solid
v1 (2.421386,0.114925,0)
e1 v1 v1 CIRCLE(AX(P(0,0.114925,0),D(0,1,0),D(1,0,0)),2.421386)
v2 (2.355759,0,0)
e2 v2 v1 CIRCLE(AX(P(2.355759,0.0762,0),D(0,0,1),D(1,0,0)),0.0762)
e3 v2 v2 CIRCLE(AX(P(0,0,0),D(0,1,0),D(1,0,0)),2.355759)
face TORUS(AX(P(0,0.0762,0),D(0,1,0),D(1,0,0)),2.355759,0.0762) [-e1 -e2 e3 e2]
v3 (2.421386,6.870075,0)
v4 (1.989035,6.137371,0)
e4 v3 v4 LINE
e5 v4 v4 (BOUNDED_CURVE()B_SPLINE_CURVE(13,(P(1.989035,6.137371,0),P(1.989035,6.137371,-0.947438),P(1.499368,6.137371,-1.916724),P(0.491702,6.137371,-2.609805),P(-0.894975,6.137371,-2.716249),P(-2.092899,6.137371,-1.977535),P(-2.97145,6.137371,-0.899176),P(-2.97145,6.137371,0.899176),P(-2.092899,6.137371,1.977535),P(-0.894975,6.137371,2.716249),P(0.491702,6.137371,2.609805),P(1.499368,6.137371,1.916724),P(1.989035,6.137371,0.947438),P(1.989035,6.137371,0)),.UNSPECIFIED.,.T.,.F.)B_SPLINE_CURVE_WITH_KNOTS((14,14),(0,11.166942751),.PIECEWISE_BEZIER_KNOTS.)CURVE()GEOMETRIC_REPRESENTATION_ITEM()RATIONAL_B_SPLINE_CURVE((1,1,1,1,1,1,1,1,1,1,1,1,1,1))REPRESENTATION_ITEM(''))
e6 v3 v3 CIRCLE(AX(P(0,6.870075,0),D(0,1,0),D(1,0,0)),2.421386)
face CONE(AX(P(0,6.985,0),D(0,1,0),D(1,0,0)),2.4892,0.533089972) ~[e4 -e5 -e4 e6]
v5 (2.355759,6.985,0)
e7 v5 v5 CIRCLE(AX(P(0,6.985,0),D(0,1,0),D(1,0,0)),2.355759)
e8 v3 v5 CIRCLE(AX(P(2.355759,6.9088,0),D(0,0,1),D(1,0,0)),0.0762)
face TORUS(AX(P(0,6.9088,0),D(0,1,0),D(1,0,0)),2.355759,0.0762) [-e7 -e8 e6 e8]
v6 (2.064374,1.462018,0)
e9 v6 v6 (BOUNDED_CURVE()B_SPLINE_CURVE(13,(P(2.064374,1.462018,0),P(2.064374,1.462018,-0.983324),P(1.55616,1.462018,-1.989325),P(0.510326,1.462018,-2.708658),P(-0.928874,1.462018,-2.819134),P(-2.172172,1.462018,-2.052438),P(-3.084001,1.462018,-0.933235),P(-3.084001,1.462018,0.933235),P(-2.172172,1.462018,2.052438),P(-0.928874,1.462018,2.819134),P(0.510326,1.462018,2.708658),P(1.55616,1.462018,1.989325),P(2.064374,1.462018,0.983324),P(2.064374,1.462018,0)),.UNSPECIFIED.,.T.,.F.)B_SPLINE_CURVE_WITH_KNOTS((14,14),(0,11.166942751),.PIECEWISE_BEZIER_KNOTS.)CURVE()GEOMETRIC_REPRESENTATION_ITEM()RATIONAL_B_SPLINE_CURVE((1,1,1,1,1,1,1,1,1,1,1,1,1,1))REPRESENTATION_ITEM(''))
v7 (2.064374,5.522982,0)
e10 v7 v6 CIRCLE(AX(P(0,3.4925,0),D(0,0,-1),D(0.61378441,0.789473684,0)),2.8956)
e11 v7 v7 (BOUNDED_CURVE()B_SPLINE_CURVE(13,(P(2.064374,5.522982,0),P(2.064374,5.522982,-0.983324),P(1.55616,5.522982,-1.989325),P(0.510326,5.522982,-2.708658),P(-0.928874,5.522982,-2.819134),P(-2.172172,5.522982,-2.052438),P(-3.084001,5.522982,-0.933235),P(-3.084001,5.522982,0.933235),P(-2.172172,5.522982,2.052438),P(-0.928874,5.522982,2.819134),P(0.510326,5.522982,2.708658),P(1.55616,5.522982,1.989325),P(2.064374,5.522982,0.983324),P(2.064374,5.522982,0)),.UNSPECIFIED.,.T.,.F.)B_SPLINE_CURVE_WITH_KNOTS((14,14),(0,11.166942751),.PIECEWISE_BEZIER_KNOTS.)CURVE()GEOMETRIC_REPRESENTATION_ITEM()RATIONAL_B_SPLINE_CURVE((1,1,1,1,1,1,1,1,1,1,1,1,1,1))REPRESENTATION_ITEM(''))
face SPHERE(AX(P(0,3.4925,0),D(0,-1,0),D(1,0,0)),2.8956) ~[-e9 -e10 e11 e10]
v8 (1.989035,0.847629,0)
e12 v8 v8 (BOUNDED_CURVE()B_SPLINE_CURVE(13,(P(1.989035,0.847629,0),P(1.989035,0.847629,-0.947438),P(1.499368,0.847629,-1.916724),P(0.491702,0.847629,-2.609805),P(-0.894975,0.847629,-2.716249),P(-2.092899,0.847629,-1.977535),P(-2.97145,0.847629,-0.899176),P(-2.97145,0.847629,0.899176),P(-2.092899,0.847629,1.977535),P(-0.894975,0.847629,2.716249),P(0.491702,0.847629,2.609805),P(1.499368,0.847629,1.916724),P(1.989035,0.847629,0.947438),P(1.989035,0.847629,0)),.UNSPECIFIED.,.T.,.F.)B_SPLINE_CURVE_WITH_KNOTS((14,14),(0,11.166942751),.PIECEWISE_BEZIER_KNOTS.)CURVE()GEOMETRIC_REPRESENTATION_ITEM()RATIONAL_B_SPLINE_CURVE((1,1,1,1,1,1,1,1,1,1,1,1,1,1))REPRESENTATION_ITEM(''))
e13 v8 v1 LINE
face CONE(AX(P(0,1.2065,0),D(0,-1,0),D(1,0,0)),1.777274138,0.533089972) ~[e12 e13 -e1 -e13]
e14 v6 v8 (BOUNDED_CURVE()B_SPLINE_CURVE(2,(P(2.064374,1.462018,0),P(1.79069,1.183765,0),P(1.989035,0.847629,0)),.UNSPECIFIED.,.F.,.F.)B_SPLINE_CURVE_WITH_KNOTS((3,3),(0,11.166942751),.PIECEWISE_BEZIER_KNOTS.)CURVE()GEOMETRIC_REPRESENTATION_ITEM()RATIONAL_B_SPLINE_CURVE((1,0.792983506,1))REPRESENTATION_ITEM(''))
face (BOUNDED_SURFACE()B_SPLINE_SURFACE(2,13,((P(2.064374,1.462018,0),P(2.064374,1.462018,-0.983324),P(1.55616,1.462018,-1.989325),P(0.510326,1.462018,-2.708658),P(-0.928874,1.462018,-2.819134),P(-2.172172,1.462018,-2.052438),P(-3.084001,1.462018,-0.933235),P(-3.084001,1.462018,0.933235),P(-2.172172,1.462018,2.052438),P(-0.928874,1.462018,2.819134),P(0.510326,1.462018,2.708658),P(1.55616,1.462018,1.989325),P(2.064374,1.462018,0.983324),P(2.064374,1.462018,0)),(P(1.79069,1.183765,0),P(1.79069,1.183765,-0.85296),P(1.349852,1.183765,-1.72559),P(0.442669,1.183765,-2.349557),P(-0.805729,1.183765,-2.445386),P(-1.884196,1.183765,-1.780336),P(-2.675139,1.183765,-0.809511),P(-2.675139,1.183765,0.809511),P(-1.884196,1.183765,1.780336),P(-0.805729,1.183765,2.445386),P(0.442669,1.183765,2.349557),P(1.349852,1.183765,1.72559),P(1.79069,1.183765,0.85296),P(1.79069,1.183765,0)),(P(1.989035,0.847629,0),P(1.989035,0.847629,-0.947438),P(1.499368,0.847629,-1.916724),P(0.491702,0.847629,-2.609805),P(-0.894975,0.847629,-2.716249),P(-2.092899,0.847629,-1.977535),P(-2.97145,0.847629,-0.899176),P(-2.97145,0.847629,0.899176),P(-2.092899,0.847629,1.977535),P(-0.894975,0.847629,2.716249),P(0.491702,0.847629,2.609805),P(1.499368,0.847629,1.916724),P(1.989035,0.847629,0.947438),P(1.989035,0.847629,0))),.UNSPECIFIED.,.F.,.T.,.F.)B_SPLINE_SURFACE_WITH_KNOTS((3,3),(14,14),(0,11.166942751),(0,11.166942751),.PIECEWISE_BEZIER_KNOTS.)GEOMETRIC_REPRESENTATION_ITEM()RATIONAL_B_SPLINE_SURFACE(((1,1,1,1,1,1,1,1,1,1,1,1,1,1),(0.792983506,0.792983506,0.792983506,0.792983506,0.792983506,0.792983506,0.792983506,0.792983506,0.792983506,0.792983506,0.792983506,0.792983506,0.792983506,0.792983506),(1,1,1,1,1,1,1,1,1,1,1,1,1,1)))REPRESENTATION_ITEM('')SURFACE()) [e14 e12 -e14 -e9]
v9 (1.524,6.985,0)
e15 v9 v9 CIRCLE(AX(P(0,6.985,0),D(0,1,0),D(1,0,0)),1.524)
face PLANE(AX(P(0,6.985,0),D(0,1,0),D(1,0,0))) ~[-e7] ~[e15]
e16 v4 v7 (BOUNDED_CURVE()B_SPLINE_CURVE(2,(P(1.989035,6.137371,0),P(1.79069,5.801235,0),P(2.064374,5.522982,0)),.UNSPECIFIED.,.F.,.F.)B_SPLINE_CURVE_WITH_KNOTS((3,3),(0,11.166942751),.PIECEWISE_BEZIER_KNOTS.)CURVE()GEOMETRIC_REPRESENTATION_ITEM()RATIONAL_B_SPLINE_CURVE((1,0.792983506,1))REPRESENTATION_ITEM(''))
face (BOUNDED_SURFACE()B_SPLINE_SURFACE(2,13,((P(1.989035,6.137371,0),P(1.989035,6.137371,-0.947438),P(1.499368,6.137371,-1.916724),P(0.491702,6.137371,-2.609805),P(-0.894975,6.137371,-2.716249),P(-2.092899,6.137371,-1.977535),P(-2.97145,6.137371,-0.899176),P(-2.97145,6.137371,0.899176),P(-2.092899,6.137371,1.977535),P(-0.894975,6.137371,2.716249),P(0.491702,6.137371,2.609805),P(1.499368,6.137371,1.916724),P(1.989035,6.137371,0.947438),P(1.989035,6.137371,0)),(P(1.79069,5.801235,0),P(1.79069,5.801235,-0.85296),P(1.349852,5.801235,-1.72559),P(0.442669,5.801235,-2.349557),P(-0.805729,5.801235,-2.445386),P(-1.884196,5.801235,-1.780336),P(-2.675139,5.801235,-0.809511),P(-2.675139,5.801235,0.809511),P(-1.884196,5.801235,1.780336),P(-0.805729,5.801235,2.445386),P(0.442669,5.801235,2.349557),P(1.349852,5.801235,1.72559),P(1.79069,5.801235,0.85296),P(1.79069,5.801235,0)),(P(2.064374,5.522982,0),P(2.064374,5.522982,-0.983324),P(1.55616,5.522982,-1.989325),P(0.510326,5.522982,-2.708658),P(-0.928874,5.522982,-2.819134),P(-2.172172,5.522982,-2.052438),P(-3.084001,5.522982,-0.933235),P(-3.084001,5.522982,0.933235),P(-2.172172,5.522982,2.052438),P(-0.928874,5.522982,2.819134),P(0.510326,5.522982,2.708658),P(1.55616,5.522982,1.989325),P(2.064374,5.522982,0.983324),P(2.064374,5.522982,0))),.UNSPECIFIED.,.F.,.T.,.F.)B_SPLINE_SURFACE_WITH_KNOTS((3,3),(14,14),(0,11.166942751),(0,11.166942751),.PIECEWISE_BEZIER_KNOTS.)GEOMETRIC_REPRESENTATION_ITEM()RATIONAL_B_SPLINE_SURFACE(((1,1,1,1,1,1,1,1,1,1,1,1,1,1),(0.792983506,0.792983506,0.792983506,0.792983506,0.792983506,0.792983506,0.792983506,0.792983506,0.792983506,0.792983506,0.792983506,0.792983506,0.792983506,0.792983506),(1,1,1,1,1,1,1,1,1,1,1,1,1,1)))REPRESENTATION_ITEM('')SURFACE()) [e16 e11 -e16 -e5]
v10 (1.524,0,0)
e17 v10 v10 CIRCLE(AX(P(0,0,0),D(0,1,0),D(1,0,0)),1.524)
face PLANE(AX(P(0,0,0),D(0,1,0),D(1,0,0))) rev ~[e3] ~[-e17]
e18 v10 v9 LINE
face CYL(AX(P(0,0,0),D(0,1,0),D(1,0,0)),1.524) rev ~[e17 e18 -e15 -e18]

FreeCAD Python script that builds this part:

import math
import FreeCAD as App
import Part
import Sketcher
from FreeCAD import Vector
Q = App.Units.Quantity


def edges_at(feature, points):
    """Names of the edges that pass closest to the given points."""
    edges = feature.Shape.Edges
    near = lambda p: min(range(len(edges)), key=lambda i: edges[i].distToShape(Part.Vertex(*p))[0])
    return sorted({f"Edge{near(p) + 1}" for p in points})

doc = App.newDocument("Part")
body = doc.addObject("PartDesign::Body", "Body")

sketch1 = body.newObject("Sketcher::SketchObject", "Sketch")
sketch1.AttachmentSupport = (doc.getObject("XY_Plane"), [""])
sketch1.MapMode = "FlatFace"
sketch1.addGeometry(Part.LineSegment(Vector(1.524, 6.985, 0), Vector(1.524, 0, 0)), False)
sketch1.addGeometry(Part.LineSegment(Vector(1.524, 0, 0), Vector(2.4892, 0, 0)), False)
sketch1.addGeometry(Part.LineSegment(Vector(2.4892, 0, 0), Vector(1.777274, 1.2065, 0)), False)
sketch1.addGeometry(Part.ArcOfCircle(Part.Circle(Vector(0, 3.4925, 0), Vector(0, 0, 1), 2.8956), math.radians(-52.136354), math.radians(52.136354)), False)
sketch1.addGeometry(Part.LineSegment(Vector(1.777274, 5.7785, 0), Vector(2.4892, 6.985, 0)), False)
sketch1.addGeometry(Part.LineSegment(Vector(2.4892, 6.985, 0), Vector(1.524, 6.985, 0)), False)
sketch1.addConstraint(Sketcher.Constraint("Coincident", 0, 2, 1, 1))
sketch1.addConstraint(Sketcher.Constraint("Coincident", 1, 2, 2, 1))
sketch1.addConstraint(Sketcher.Constraint("Coincident", 2, 2, 3, 1))
sketch1.addConstraint(Sketcher.Constraint("Coincident", 3, 2, 4, 1))
sketch1.addConstraint(Sketcher.Constraint("Coincident", 4, 2, 5, 1))
sketch1.addConstraint(Sketcher.Constraint("Coincident", 5, 2, 0, 1))
sketch1.addConstraint(Sketcher.Constraint("Vertical", 0))
sketch1.addConstraint(Sketcher.Constraint("Horizontal", 1))
sketch1.addConstraint(Sketcher.Constraint("Horizontal", 5))
sketch1.addConstraint(Sketcher.Constraint("PointOnObject", 3, 3, -2))
sketch1.addConstraint(Sketcher.Constraint("PointOnObject", 0, 2, -1))
sketch1.addConstraint(Sketcher.Constraint("Vertical", 2, 2, 3, 2))
sketch1.addConstraint(Sketcher.Constraint("Vertical", 1, 2, 4, 2))
sketch1.addConstraint(Sketcher.Constraint("Equal", 2, 4))
sketch1.addConstraint(Sketcher.Constraint("Radius", 3, Q("0.114 in")))
sketch1.addConstraint(Sketcher.Constraint("DistanceX", 1, 1, 1, 2, Q("0.038 in")))
sketch1.addConstraint(Sketcher.Constraint("DistanceY", 0, 2, 0, 1, Q("0.275 in")))
sketch1.addConstraint(Sketcher.Constraint("DistanceX", -1, 1, 0, 2, Q("0.06 in")))
sketch1.addConstraint(Sketcher.Constraint("DistanceY", 2, 2, 3, 3, Q("0.09 in")))
revolution = body.newObject("PartDesign::Revolution", "Revolution")
revolution.Profile = sketch1
revolution.ReferenceAxis = (sketch1, ["V_Axis"])
revolution.Angle = 360
doc.recompute()

fillet = body.newObject("PartDesign::Fillet", "Fillet")
fillet.Base = (revolution, edges_at(revolution, [(-1.777, 1.206, 0), (-1.777, 5.779, 0)]))
fillet.Radius = Q("0.02 in")
doc.recompute()

fillet2 = body.newObject("PartDesign::Fillet", "Fillet001")
fillet2.Base = (fillet, edges_at(fillet, [(-2.489, 0, 0), (-2.489, 6.985, 0)]))
fillet2.Radius = Q("0.003 in")

doc.recompute()
